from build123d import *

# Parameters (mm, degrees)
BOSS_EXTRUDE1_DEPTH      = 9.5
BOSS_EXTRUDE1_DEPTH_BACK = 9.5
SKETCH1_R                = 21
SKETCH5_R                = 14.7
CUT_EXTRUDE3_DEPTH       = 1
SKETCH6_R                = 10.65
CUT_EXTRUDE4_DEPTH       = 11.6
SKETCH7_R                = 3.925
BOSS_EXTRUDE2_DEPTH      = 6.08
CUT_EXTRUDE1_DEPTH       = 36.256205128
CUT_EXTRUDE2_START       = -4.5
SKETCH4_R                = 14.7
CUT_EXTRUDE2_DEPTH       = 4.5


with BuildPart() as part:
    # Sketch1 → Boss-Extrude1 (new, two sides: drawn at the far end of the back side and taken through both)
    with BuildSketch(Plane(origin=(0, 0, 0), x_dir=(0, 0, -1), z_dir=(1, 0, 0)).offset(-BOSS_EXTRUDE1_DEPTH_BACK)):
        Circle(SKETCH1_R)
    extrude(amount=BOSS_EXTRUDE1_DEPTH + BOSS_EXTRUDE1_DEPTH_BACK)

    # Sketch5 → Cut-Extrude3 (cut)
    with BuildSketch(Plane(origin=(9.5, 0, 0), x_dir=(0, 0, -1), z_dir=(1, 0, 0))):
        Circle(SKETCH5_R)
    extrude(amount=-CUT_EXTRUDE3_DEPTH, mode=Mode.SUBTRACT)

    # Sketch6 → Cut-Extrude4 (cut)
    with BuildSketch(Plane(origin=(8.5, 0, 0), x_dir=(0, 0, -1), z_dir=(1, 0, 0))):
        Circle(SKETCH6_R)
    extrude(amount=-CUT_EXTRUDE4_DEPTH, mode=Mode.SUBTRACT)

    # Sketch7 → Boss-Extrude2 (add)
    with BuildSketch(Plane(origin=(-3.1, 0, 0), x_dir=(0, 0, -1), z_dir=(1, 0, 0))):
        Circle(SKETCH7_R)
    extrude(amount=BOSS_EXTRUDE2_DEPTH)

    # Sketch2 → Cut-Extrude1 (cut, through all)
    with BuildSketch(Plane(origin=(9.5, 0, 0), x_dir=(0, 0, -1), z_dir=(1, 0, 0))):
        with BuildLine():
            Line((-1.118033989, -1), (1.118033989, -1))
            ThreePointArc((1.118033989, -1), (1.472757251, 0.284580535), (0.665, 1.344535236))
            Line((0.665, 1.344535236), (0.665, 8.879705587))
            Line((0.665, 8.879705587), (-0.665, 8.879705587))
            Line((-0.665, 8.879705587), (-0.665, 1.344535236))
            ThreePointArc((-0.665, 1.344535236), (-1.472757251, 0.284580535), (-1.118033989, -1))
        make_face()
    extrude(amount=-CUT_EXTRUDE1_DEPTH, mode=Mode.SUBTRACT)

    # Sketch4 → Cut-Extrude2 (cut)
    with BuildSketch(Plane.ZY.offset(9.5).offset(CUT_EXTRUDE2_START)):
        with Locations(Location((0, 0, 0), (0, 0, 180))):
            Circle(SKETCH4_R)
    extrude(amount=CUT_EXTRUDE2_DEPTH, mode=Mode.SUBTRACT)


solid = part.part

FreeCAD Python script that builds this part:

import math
import FreeCAD as App
import Part
import Sketcher

V = App.Vector

doc = App.newDocument("Part")
params = doc.addObject("Spreadsheet::Sheet", "Params")
for row, (alias, value) in enumerate([
    ("sketch1_diameter", "42 mm"),
    ("pad1_length", "9.5 mm"),
    ("pad1_length2", "9.5 mm"),
    ("sketch2_diameter", "29.4 mm"),
    ("pocket1_length", "1 mm"),
    ("sketch3_diameter", "21.3 mm"),
    ("pocket2_length", "11.6 mm"),
    ("sketch4_diameter", "7.85 mm"),
    ("pad2_length", "6.08 mm"),
    ("sketch5_radius", "1.5 mm"),
    ("sketch5_height", "1.33 mm"),
    ("sketch6_diameter", "29.4 mm"),
    ("pocket4_length", "4.5 mm"),
], start=1):
    params.set(f"A{row}", alias)
    params.set(f"B{row}", "=" + value)
    params.setAlias(f"B{row}", alias)

body = doc.addObject("PartDesign::Body", "Body")

# Sketch on YZ plane
sketch1 = body.newObject("Sketcher::SketchObject", "Sketch")
sketch1.AttachmentSupport = (doc.getObject("YZ_Plane"), [""])
sketch1.MapMode = "FlatFace"
sketch1.addGeometry(Part.Circle(V(0, 0, 0), V(0, 0, 1), 21), False)
sketch1.addConstraint([
    Sketcher.Constraint("Coincident", 0, 3, -1, 1),
    Sketcher.Constraint("Diameter", 0, 42.0),
])
sketch1.setExpression("Constraints[1]", "Params.sketch1_diameter")
pad1 = body.newObject("PartDesign::Pad", "Pad")
pad1.Profile = sketch1
pad1.Type = "TwoLengths"
pad1.setExpression("Length", "Params.pad1_length")
pad1.setExpression("Length2", "Params.pad1_length2")

# Sketch on YZ plane
sketch2 = body.newObject("Sketcher::SketchObject", "Sketch001")
sketch2.AttachmentSupport = (doc.getObject("YZ_Plane"), [""])
sketch2.MapMode = "FlatFace"
sketch2.AttachmentOffset = App.Placement(V(0, 0, 9.5), App.Rotation())
sketch2.addGeometry(Part.Circle(V(0, 0, 0), V(0, 0, 1), 14.7), False)
sketch2.addConstraint([
    Sketcher.Constraint("Coincident", 0, 3, -1, 1),
    Sketcher.Constraint("Diameter", 0, 29.4),
])
sketch2.setExpression("Constraints[1]", "Params.sketch2_diameter")
pocket1 = body.newObject("PartDesign::Pocket", "Pocket")
pocket1.Profile = sketch2
pocket1.setExpression("Length", "Params.pocket1_length")

# Sketch on YZ plane
sketch3 = body.newObject("Sketcher::SketchObject", "Sketch002")
sketch3.AttachmentSupport = (doc.getObject("YZ_Plane"), [""])
sketch3.MapMode = "FlatFace"
sketch3.AttachmentOffset = App.Placement(V(0, 0, 8.5), App.Rotation())
sketch3.addGeometry(Part.Circle(V(0, 0, 0), V(0, 0, 1), 10.65), False)
sketch3.addConstraint([
    Sketcher.Constraint("Coincident", 0, 3, -1, 1),
    Sketcher.Constraint("Diameter", 0, 21.3),
])
sketch3.setExpression("Constraints[1]", "Params.sketch3_diameter")
pocket2 = body.newObject("PartDesign::Pocket", "Pocket001")
pocket2.Profile = sketch3
pocket2.setExpression("Length", "Params.pocket2_length")

# Sketch on YZ plane
sketch4 = body.newObject("Sketcher::SketchObject", "Sketch003")
sketch4.AttachmentSupport = (doc.getObject("YZ_Plane"), [""])
sketch4.MapMode = "FlatFace"
sketch4.AttachmentOffset = App.Placement(V(0, 0, -3.1), App.Rotation())
sketch4.addGeometry(Part.Circle(V(0, 0, 0), V(0, 0, 1), 3.925), False)
sketch4.addConstraint([
    Sketcher.Constraint("Coincident", 0, 3, -1, 1),
    Sketcher.Constraint("Diameter", 0, 7.85),
])
sketch4.setExpression("Constraints[1]", "Params.sketch4_diameter")
pad2 = body.newObject("PartDesign::Pad", "Pad001")
pad2.Profile = sketch4
pad2.setExpression("Length", "Params.pad2_length")

# Sketch on YZ plane
sketch5 = body.newObject("Sketcher::SketchObject", "Sketch004")
sketch5.AttachmentSupport = (doc.getObject("YZ_Plane"), [""])
sketch5.MapMode = "FlatFace"
sketch5.AttachmentOffset = App.Placement(V(0, 0, 9.5), App.Rotation())
sketch5.addGeometry([
    Part.LineSegment(V(-1, 1.118034, 0), V(-1, -1.118034, 0)),  # 0
    Part.ArcOfCircle(Part.Circle(V(0, 0, 0), V(0, 0, 1), 1.5), math.radians(-131.810315), math.radians(-26.316755)),  # 1
    Part.LineSegment(V(1.344535, -0.665, 0), V(8.879706, -0.665, 0)),  # 2
    Part.LineSegment(V(8.879706, -0.665, 0), V(8.879706, 0.665, 0)),  # 3
    Part.LineSegment(V(8.879706, 0.665, 0), V(1.344535, 0.665, 0)),  # 4
    Part.ArcOfCircle(Part.Circle(V(0, 0, 0), V(0, 0, 1), 1.5), math.radians(26.316755), math.radians(131.810315)),  # 5
], False)
sketch5.addConstraint([
    Sketcher.Constraint("Coincident", 0, 2, 1, 1),
    Sketcher.Constraint("Coincident", 1, 2, 2, 1),
    Sketcher.Constraint("Coincident", 2, 2, 3, 1),
    Sketcher.Constraint("Coincident", 3, 2, 4, 1),
    Sketcher.Constraint("Coincident", 4, 2, 5, 1),
    Sketcher.Constraint("Coincident", 5, 2, 0, 1),
    Sketcher.Constraint("Vertical", 0),
    Sketcher.Constraint("Horizontal", 2),
    Sketcher.Constraint("Vertical", 3),
    Sketcher.Constraint("Horizontal", 4),
    Sketcher.Constraint("Coincident", 1, 3, -1, 1),
    Sketcher.Constraint("Coincident", 5, 3, -1, 1),
    Sketcher.Constraint("Equal", 1, 5),
    Sketcher.Constraint("Vertical", 1, 2, 4, 2),
    Sketcher.Constraint("Radius", 1, 1.5),
    Sketcher.Constraint("DistanceX", 0, 2, -1, 1, 1.0),
    Sketcher.Constraint("DistanceY", 3, 1, 3, 2, 1.33),
    Sketcher.Constraint("DistanceX", 2, 1, 2, 2, 7.53517),
])
sketch5.setExpression("Constraints[14]", "Params.sketch5_radius")
sketch5.setExpression("Constraints[16]", "Params.sketch5_height")
pocket3 = body.newObject("PartDesign::Pocket", "Pocket002")
pocket3.Profile = sketch5
pocket3.Type = "ThroughAll"

# Sketch on YZ plane
sketch6 = body.newObject("Sketcher::SketchObject", "Sketch005")
sketch6.AttachmentSupport = (doc.getObject("YZ_Plane"), [""])
sketch6.MapMode = "FlatFace"
sketch6.AttachmentOffset = App.Placement(V(0, 0, -5), App.Rotation())
sketch6.addGeometry(Part.Circle(V(0, 0, 0), V(0, 0, 1), 14.7), False)
sketch6.addConstraint([
    Sketcher.Constraint("Coincident", 0, 3, -1, 1),
    Sketcher.Constraint("Diameter", 0, 29.4),
])
sketch6.setExpression("Constraints[1]", "Params.sketch6_diameter")
pocket4 = body.newObject("PartDesign::Pocket", "Pocket003")
pocket4.Profile = sketch6
pocket4.setExpression("Length", "Params.pocket4_length")

doc.recompute()
